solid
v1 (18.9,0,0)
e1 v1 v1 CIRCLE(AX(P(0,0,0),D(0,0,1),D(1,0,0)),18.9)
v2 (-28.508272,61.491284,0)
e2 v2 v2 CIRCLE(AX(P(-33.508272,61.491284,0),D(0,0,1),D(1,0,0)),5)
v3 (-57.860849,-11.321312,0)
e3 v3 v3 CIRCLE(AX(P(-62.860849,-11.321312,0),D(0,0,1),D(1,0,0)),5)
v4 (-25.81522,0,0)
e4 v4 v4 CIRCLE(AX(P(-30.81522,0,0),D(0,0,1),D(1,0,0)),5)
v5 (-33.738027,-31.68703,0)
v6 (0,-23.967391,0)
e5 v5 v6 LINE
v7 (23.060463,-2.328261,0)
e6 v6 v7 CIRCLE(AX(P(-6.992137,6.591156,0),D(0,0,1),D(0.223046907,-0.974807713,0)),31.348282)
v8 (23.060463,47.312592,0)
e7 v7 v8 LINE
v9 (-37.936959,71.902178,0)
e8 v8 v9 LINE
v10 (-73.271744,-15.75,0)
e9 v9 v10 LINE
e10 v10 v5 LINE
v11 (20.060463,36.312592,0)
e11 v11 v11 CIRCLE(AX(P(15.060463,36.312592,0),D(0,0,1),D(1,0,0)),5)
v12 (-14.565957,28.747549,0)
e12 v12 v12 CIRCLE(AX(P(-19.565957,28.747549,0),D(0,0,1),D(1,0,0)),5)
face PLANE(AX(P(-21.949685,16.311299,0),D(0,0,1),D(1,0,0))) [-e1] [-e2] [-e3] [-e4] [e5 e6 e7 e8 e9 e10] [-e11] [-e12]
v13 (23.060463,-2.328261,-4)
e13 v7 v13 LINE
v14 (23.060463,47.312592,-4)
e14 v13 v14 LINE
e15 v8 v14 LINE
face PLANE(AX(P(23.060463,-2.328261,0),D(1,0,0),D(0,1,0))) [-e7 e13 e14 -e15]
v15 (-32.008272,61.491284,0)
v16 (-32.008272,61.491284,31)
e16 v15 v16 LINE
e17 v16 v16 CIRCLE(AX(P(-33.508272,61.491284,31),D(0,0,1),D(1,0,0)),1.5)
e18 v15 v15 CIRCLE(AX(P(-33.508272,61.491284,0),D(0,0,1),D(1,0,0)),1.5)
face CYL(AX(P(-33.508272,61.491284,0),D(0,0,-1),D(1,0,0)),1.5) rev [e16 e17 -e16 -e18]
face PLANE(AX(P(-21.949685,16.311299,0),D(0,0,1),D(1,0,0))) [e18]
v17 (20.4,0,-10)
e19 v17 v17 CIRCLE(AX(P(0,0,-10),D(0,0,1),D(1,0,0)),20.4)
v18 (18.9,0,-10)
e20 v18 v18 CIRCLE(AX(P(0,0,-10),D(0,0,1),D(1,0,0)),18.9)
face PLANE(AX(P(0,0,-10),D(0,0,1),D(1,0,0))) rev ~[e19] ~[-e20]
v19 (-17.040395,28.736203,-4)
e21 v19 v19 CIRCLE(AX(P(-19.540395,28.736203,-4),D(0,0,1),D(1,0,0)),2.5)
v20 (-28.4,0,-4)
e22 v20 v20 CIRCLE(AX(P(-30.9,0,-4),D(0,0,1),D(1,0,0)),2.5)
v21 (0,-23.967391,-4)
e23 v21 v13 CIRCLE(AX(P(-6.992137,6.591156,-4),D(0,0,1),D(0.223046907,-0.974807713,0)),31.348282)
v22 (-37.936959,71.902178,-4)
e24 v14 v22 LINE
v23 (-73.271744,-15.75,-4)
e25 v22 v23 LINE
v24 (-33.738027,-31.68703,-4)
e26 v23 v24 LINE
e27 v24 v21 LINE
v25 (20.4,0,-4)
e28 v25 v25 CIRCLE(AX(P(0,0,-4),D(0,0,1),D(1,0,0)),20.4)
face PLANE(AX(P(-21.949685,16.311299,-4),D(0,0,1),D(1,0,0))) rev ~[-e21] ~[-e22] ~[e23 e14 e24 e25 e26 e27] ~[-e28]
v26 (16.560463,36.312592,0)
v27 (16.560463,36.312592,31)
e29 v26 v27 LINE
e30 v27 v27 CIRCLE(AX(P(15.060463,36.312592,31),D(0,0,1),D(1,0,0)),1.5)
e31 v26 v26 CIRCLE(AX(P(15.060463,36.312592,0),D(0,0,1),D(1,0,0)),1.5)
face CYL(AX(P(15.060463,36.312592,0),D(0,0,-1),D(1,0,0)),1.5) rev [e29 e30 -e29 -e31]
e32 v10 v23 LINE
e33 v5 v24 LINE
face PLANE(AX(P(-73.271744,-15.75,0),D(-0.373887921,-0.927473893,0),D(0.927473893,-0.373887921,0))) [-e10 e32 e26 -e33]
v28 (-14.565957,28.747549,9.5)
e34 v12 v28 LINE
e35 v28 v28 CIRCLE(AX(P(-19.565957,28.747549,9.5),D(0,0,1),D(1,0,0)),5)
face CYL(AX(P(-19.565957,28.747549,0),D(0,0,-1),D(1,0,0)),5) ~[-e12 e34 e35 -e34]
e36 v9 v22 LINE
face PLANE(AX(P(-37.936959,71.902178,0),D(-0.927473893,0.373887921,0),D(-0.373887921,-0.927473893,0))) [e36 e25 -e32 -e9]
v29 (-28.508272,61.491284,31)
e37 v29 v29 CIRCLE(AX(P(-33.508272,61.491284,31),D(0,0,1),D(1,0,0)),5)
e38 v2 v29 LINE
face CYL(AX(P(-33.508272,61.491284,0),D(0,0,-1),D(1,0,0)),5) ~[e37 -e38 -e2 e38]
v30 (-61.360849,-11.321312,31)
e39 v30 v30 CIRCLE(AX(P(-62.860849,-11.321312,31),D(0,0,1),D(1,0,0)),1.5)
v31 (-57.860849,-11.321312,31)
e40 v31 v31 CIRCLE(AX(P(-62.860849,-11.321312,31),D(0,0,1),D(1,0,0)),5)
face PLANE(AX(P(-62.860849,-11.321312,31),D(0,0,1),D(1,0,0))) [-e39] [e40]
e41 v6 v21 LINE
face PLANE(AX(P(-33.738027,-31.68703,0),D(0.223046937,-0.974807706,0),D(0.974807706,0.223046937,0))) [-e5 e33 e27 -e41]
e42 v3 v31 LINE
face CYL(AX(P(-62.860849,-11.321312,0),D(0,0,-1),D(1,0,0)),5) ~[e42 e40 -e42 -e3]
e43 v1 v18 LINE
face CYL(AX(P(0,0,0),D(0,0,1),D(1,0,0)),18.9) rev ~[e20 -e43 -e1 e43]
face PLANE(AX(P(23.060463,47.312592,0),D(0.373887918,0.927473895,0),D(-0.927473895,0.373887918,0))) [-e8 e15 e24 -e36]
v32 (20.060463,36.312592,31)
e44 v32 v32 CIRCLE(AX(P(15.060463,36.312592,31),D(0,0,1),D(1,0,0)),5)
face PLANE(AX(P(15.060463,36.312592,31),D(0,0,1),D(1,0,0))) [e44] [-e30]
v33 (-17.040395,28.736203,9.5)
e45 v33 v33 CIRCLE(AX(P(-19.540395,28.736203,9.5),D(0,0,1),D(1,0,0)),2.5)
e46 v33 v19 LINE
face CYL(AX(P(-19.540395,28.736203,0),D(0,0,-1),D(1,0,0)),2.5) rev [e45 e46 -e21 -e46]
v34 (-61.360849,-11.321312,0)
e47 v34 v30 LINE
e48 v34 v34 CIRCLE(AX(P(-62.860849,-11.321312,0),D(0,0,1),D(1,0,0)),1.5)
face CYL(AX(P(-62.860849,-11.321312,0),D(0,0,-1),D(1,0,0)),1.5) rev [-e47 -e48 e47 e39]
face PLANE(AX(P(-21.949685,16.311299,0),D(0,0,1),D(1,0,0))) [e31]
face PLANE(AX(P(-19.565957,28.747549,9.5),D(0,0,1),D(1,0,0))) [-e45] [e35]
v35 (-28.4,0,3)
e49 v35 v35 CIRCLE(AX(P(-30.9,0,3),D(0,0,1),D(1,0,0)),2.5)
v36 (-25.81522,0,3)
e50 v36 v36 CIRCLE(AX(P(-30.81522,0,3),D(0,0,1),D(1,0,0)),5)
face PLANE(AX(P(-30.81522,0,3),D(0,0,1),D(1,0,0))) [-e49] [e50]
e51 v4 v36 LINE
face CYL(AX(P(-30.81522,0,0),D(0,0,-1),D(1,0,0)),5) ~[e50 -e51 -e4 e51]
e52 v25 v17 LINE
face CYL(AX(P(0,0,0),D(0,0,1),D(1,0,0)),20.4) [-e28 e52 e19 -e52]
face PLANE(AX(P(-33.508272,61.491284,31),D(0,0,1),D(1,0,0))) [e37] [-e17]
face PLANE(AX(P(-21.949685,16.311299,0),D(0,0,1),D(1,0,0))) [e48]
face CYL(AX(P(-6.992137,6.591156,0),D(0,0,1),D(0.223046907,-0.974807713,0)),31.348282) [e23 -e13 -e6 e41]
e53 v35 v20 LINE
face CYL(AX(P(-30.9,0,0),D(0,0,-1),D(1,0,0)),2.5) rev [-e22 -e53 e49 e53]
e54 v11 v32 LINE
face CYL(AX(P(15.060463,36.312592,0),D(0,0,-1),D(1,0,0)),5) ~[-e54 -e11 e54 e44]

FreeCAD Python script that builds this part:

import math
import FreeCAD as App
import Part
import Sketcher

doc = App.newDocument("Part")
body = doc.addObject("PartDesign::Body", "Body")

# Sketch on XY plane
sketch1 = body.newObject("Sketcher::SketchObject", "Sketch")
sketch1.AttachmentSupport = (doc.getObject("XY_Plane"), [""])
sketch1.MapMode = "FlatFace"
sketch1.addGeometry(Part.Circle(App.Vector(0, 0, 0), App.Vector(0, 0, 1), 20.4), False)
sketch1.addGeometry(Part.Circle(App.Vector(0, 0, 0), App.Vector(0, 0, 1), 18.9), False)
sketch1.addConstraint(Sketcher.Constraint("Coincident", 0, 3, -1, 1))
sketch1.addConstraint(Sketcher.Constraint("Coincident", 1, 3, -1, 1))
sketch1.addConstraint(Sketcher.Constraint("Diameter", 0, 40.8))
sketch1.addConstraint(Sketcher.Constraint("Diameter", 1, 37.8))
pad1 = body.newObject("PartDesign::Pad", "Pad")
pad1.Profile = sketch1
pad1.Length = 10
pad1.Reversed = True

# Sketch on XY plane
sketch2 = body.newObject("Sketcher::SketchObject", "Sketch001")
sketch2.AttachmentSupport = (doc.getObject("XY_Plane"), [""])
sketch2.MapMode = "FlatFace"
sketch2.addGeometry(Part.LineSegment(App.Vector(-37.936959, 71.902178, 0), App.Vector(-73.271744, -15.75, 0)), False)
sketch2.addGeometry(Part.LineSegment(App.Vector(-73.271744, -15.75, 0), App.Vector(-33.738027, -31.68703, 0)), False)
sketch2.addGeometry(Part.LineSegment(App.Vector(-33.738027, -31.68703, 0), App.Vector(0, -23.967391, 0)), False)
sketch2.addGeometry(Part.ArcOfCircle(Part.Circle(App.Vector(-6.992137, 6.591156, 0), App.Vector(0, 0, 1), 31.348282), math.radians(-77.111944), math.radians(-16.530548)), False)
sketch2.addGeometry(Part.LineSegment(App.Vector(23.060463, -2.328261, 0), App.Vector(23.060463, 47.312592, 0)), False)
sketch2.addGeometry(Part.LineSegment(App.Vector(23.060463, 47.312592, 0), App.Vector(-37.936959, 71.902178, 0)), False)
sketch2.addGeometry(Part.Circle(App.Vector(-30.9, 0, 0), App.Vector(0, 0, 1), 2.5), False)
sketch2.addGeometry(Part.Circle(App.Vector(0, 0, 0), App.Vector(0, 0, 1), 20.4), False)
sketch2.addGeometry(Part.Circle(App.Vector(-19.540395, 28.736203, 0), App.Vector(0, 0, 1), 2.5), False)
sketch2.addConstraint(Sketcher.Constraint("Coincident", 0, 2, 1, 1))
sketch2.addConstraint(Sketcher.Constraint("Coincident", 1, 2, 2, 1))
sketch2.addConstraint(Sketcher.Constraint("Tangent", 2, 2, 3, 1))
sketch2.addConstraint(Sketcher.Constraint("Coincident", 3, 2, 4, 1))
sketch2.addConstraint(Sketcher.Constraint("Coincident", 4, 2, 5, 1))
sketch2.addConstraint(Sketcher.Constraint("Coincident", 5, 2, 0, 1))
sketch2.addConstraint(Sketcher.Constraint("Vertical", 4))
sketch2.addConstraint(Sketcher.Constraint("Coincident", 7, 3, -1, 1))
sketch2.addConstraint(Sketcher.Constraint("Equal", 6, 8))
sketch2.addConstraint(Sketcher.Constraint("PointOnObject", 6, 3, -1))
sketch2.addConstraint(Sketcher.Constraint("PointOnObject", 2, 2, -2))
sketch2.addConstraint(Sketcher.Constraint("Perpendicular", 0, 1))
sketch2.addConstraint(Sketcher.Constraint("Parallel", 1, 5))
sketch2.addConstraint(Sketcher.Constraint("Diameter", 6, 5.0))
sketch2.addConstraint(Sketcher.Constraint("Diameter", 7, 40.8))
sketch2.addConstraint(Sketcher.Constraint("DistanceX", 6, 3, -1, 1, 30.9))
sketch2.addConstraint(Sketcher.Constraint("DistanceY", 0, 2, -1, 1, 15.75))
sketch2.addConstraint(Sketcher.Constraint("Radius", 3, 31.348282))
sketch2.addConstraint(Sketcher.Constraint("DistanceX", 3, 3, 3, 2, 30.0526))
sketch2.addConstraint(Sketcher.Constraint("Distance", 2, 34.609931))
sketch2.addConstraint(Sketcher.Constraint("DistanceY", 4, 1, 4, 2, 49.640853))
sketch2.addConstraint(Sketcher.Constraint("DistanceY", 1, 2, -1, 1, 31.68703))
sketch2.addConstraint(Sketcher.Constraint("DistanceY", 2, 2, -1, 1, 23.967391))
sketch2.addConstraint(Sketcher.Constraint("DistanceX", 5, 2, -1, 1, 37.936959))
sketch2.addConstraint(Sketcher.Constraint("DistanceX", 0, 2, 8, 3, 53.731349))
sketch2.addConstraint(Sketcher.Constraint("DistanceY", 8, 3, 4, 2, 18.576389))
pad2 = body.newObject("PartDesign::Pad", "Pad001")
pad2.Profile = sketch2
pad2.Length = 4
pad2.Reversed = True

# Sketch on XY plane
sketch3 = body.newObject("Sketcher::SketchObject", "Sketch002")
sketch3.AttachmentSupport = (doc.getObject("XY_Plane"), [""])
sketch3.MapMode = "FlatFace"
sketch3.addGeometry(Part.Circle(App.Vector(-30.81522, 0, 0), App.Vector(0, 0, 1), 5), False)
sketch3.addGeometry(Part.Circle(App.Vector(-30.9, 0, 0), App.Vector(0, 0, 1), 2.5), False)
sketch3.addConstraint(Sketcher.Constraint("PointOnObject", 0, 3, -1))
sketch3.addConstraint(Sketcher.Constraint("PointOnObject", 1, 3, -1))
sketch3.addConstraint(Sketcher.Constraint("Diameter", 0, 10.0))
sketch3.addConstraint(Sketcher.Constraint("Diameter", 1, 5.0))
sketch3.addConstraint(Sketcher.Constraint("DistanceX", 1, 3, -1, 1, 30.9))
sketch3.addConstraint(Sketcher.Constraint("DistanceX", 0, 3, -1, 1, 30.81522))
pad3 = body.newObject("PartDesign::Pad", "Pad002")
pad3.Profile = sketch3
pad3.Length = 3

# Sketch on XY plane
sketch4 = body.newObject("Sketcher::SketchObject", "Sketch003")
sketch4.AttachmentSupport = (doc.getObject("XY_Plane"), [""])
sketch4.MapMode = "FlatFace"
sketch4.addGeometry(Part.Circle(App.Vector(-19.565957, 28.747549, 0), App.Vector(0, 0, 1), 5), False)
sketch4.addGeometry(Part.Circle(App.Vector(-19.540395, 28.736203, 0), App.Vector(0, 0, 1), 2.5), False)
sketch4.addConstraint(Sketcher.Constraint("Diameter", 0, 10.0))
sketch4.addConstraint(Sketcher.Constraint("Diameter", 1, 5.0))
sketch4.addConstraint(Sketcher.Constraint("DistanceY", -1, 1, 0, 3, 28.747549))
sketch4.addConstraint(Sketcher.Constraint("DistanceX", 0, 3, -1, 1, 19.565957))
sketch4.addConstraint(Sketcher.Constraint("DistanceX", 1, 3, -1, 1, 19.540395))
sketch4.addConstraint(Sketcher.Constraint("DistanceY", -1, 1, 1, 3, 28.736203))
pad4 = body.newObject("PartDesign::Pad", "Pad003")
pad4.Profile = sketch4
pad4.Length = 9.5

# Sketch on XY plane
sketch5 = body.newObject("Sketcher::SketchObject", "Sketch004")
sketch5.AttachmentSupport = (doc.getObject("XY_Plane"), [""])
sketch5.MapMode = "FlatFace"
sketch5.addGeometry(Part.Circle(App.Vector(15.060463, 36.312592, 0), App.Vector(0, 0, 1), 5), False)
sketch5.addGeometry(Part.Circle(App.Vector(15.060463, 36.312592, 0), App.Vector(0, 0, 1), 1.5), False)
sketch5.addGeometry(Part.Circle(App.Vector(-33.508272, 61.491284, 0), App.Vector(0, 0, 1), 5), False)
sketch5.addGeometry(Part.Circle(App.Vector(-33.508272, 61.491284, 0), App.Vector(0, 0, 1), 1.5), False)
sketch5.addGeometry(Part.Circle(App.Vector(-62.860849, -11.321312, 0), App.Vector(0, 0, 1), 5), False)
sketch5.addGeometry(Part.Circle(App.Vector(-62.860849, -11.321312, 0), App.Vector(0, 0, 1), 1.5), False)
sketch5.addConstraint(Sketcher.Constraint("Coincident", 1, 3, 0, 3))
sketch5.addConstraint(Sketcher.Constraint("Coincident", 3, 3, 2, 3))
sketch5.addConstraint(Sketcher.Constraint("Coincident", 5, 3, 4, 3))
sketch5.addConstraint(Sketcher.Constraint("Equal", 0, 2))
sketch5.addConstraint(Sketcher.Constraint("Equal", 1, 3))
sketch5.addConstraint(Sketcher.Constraint("Equal", 2, 4))
sketch5.addConstraint(Sketcher.Constraint("Equal", 3, 5))
sketch5.addConstraint(Sketcher.Constraint("Diameter", 0, 10.0))
sketch5.addConstraint(Sketcher.Constraint("Diameter", 1, 3.0))
sketch5.addConstraint(Sketcher.Constraint("DistanceX", 2, 3, -1, 1, 33.508272))
sketch5.addConstraint(Sketcher.Constraint("DistanceX", 4, 3, -1, 1, 62.860849))
sketch5.addConstraint(Sketcher.Constraint("DistanceY", 0, 3, 2, 3, 25.178692))
sketch5.addConstraint(Sketcher.Constraint("DistanceX", 4, 3, 0, 3, 77.921312))
sketch5.addConstraint(Sketcher.Constraint("DistanceY", -1, 1, 0, 3, 36.312592))
sketch5.addConstraint(Sketcher.Constraint("DistanceY", 4, 3, -1, 1, 11.321312))
pad5 = body.newObject("PartDesign::Pad", "Pad004")
pad5.Profile = sketch5
pad5.Length = 31

doc.recompute()
